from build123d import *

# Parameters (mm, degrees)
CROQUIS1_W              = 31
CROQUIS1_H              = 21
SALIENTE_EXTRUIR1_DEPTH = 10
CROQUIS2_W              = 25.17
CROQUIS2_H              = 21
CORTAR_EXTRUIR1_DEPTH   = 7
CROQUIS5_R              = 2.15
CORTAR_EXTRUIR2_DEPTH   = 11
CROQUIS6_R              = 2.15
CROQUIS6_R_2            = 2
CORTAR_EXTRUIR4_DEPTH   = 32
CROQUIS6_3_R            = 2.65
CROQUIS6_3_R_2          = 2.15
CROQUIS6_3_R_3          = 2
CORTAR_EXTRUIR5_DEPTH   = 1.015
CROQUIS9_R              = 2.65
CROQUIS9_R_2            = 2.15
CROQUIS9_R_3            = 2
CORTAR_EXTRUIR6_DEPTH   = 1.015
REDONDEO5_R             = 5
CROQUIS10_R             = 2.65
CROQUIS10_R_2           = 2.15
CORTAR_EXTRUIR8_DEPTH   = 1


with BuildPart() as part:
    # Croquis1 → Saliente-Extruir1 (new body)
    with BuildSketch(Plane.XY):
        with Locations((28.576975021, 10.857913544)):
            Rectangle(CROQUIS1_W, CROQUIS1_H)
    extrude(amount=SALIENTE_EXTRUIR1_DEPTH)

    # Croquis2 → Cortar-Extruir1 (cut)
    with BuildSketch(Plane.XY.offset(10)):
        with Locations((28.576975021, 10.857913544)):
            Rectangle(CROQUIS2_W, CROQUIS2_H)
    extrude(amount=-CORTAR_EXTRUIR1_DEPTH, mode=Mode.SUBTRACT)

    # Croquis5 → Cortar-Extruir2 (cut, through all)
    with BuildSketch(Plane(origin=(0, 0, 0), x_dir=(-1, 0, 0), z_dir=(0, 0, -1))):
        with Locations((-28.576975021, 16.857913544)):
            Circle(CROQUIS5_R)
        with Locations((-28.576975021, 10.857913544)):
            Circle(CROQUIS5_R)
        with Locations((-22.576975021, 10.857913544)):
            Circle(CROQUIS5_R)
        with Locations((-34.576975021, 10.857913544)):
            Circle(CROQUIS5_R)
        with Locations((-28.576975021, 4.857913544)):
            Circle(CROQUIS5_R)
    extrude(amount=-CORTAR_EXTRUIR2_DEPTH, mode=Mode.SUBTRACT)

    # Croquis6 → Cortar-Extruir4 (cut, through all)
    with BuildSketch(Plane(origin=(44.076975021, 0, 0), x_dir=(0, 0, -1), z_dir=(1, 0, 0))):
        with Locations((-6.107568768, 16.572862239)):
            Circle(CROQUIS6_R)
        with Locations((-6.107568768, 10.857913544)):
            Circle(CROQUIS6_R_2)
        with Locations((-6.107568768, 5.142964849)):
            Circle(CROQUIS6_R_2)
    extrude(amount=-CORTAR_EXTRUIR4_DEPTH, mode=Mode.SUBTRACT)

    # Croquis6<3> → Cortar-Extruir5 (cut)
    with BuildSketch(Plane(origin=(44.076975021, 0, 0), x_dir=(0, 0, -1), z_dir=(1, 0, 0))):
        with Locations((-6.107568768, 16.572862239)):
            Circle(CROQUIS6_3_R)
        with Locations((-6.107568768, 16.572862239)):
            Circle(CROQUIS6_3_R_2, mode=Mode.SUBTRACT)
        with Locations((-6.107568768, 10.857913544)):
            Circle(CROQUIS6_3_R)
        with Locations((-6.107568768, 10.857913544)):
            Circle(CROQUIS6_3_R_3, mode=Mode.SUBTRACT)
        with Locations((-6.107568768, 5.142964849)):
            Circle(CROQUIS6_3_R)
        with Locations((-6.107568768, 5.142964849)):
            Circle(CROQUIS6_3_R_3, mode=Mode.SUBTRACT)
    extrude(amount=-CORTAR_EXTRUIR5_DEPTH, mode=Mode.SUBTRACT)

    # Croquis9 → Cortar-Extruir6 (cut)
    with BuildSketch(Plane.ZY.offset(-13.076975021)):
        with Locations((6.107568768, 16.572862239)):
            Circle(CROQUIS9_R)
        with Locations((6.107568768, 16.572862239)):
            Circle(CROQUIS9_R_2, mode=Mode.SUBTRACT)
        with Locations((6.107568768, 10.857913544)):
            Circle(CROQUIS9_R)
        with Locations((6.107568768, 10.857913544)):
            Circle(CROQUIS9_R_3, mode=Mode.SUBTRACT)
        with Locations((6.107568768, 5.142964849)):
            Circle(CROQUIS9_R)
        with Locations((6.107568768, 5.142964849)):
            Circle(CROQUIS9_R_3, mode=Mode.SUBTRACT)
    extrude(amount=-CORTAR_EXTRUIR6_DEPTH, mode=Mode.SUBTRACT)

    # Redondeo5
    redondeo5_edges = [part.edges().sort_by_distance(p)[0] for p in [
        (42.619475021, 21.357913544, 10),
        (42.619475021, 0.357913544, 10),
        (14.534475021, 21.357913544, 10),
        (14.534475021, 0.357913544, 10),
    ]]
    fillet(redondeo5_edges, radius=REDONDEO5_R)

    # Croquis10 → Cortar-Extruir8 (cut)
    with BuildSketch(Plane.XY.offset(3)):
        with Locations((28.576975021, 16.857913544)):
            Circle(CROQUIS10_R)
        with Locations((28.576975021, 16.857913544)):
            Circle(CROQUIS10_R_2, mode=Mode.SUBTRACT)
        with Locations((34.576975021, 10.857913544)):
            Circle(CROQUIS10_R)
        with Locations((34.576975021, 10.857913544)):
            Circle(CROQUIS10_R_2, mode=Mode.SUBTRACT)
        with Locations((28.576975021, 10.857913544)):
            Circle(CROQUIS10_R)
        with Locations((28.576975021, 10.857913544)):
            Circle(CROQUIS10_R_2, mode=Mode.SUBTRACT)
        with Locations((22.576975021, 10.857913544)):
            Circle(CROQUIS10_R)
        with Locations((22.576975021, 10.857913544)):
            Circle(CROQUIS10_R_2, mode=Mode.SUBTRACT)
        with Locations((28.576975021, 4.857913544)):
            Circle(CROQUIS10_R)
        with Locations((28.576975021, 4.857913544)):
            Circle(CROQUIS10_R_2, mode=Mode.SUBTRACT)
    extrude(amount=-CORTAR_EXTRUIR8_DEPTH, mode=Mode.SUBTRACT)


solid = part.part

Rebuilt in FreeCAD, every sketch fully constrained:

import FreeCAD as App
import Part
import Sketcher
Q = App.Units.Quantity


def edges_at(feature, points):
    """Names of the edges that pass closest to the given points."""
    edges = feature.Shape.Edges
    near = lambda p: min(range(len(edges)), key=lambda i: edges[i].distToShape(Part.Vertex(*p))[0])
    return sorted({f"Edge{near(p) + 1}" for p in points})


def add_polygon(sketch, points):
    """Adds a closed chain of lines whose ends are joined by coincident constraints."""
    first, n = sketch.GeometryCount, len(points)
    for a, b in zip(points, points[1:] + points[:1]):
        sketch.addGeometry(Part.LineSegment(App.Vector(*a, 0), App.Vector(*b, 0)), False)
    for i in range(n):
        sketch.addConstraint(Sketcher.Constraint("Coincident", first + i, 2, first + (i + 1) % n, 1))

doc = App.newDocument("Part")
params = doc.addObject("Spreadsheet::Sheet", "Params")
for row, (alias, value) in enumerate([
    ("sketch1_width", "31 mm"),
    ("sketch1_height", "21 mm"),
    ("pad1_length", "10 mm"),
    ("sketch2_height", "21 mm"),
    ("sketch2_width", "25.17 mm"),
    ("pocket1_length", "7 mm"),
    ("sketch3_diameter", "4.3 mm"),
    ("sketch4_diameter", "4 mm"),
    ("sketch4_diameter2", "4.3 mm"),
    ("sketch5_diameter", "4 mm"),
    ("sketch5_diameter2", "5.3 mm"),
    ("sketch5_diameter3", "4.3 mm"),
    ("pocket4_length", "1.015 mm"),
    ("sketch6_diameter", "4 mm"),
    ("sketch6_diameter2", "5.3 mm"),
    ("sketch6_diameter3", "4.3 mm"),
    ("pocket5_length", "1.015 mm"),
    ("fillet_radius", "5 mm"),
    ("sketch7_diameter", "5.3 mm"),
    ("sketch7_diameter2", "4.3 mm"),
    ("pocket6_length", "1 mm"),
], start=1):
    params.set(f"A{row}", alias)
    params.set(f"B{row}", "=" + value)
    params.setAlias(f"B{row}", alias)

body = doc.addObject("PartDesign::Body", "Body")

# Sketch on XY plane
sketch1 = body.newObject("Sketcher::SketchObject", "Sketch")
sketch1.AttachmentSupport = (doc.getObject("XY_Plane"), [""])
sketch1.MapMode = "FlatFace"
add_polygon(sketch1, [(13, 21), (13, 0), (44, 0), (44, 21)])  # lines 0-3
sketch1.addConstraint([
    Sketcher.Constraint("Vertical", 0),
    Sketcher.Constraint("Horizontal", 1),
    Sketcher.Constraint("Vertical", 2),
    Sketcher.Constraint("Horizontal", 3),
    Sketcher.Constraint("DistanceX", 1, 1, 1, 2, Q("31 mm")),
    Sketcher.Constraint("DistanceY", 0, 2, 0, 1, Q("21 mm")),
    Sketcher.Constraint("DistanceX", -1, 1, 0, 2, Q("13.076975 mm")),
    Sketcher.Constraint("DistanceY", -1, 1, 0, 2, Q("0.357914 mm")),
])
sketch1.setExpression("Constraints[8]", "Params.sketch1_width")
sketch1.setExpression("Constraints[9]", "Params.sketch1_height")
pad1 = body.newObject("PartDesign::Pad", "Pad")
pad1.Profile = sketch1
pad1.setExpression("Length", "Params.pad1_length")

# Sketch on XY plane
sketch2 = body.newObject("Sketcher::SketchObject", "Sketch001")
sketch2.AttachmentSupport = (doc.getObject("XY_Plane"), [""])
sketch2.MapMode = "FlatFace"
sketch2.AttachmentOffset = App.Placement(App.Vector(0, 0, 10), App.Rotation())
add_polygon(sketch2, [(16, 21), (16, 0), (41, 0), (41, 21)])  # lines 0-3
sketch2.addConstraint([
    Sketcher.Constraint("Vertical", 0),
    Sketcher.Constraint("Horizontal", 1),
    Sketcher.Constraint("Vertical", 2),
    Sketcher.Constraint("Horizontal", 3),
    Sketcher.Constraint("DistanceY", 0, 2, 0, 1, Q("21 mm")),
    Sketcher.Constraint("DistanceX", 1, 1, 1, 2, Q("25.17 mm")),
    Sketcher.Constraint("DistanceX", -1, 1, 0, 2, Q("15.991975 mm")),
    Sketcher.Constraint("DistanceY", -1, 1, 0, 2, Q("0.357914 mm")),
])
sketch2.setExpression("Constraints[8]", "Params.sketch2_height")
sketch2.setExpression("Constraints[9]", "Params.sketch2_width")
pocket1 = body.newObject("PartDesign::Pocket", "Pocket")
pocket1.Profile = sketch2
pocket1.setExpression("Length", "Params.pocket1_length")

# Sketch on XY plane
sketch3 = body.newObject("Sketcher::SketchObject", "Sketch002")
sketch3.AttachmentSupport = (doc.getObject("XY_Plane"), [""])
sketch3.MapMode = "FlatFace"
sketch3.addGeometry([
    Part.Circle(App.Vector(28.6, 16.9, 0), App.Vector(0, 0, 1), 2.1),  # 0
    Part.Circle(App.Vector(28.6, 10.9, 0), App.Vector(0, 0, 1), 2.1),  # 1
    Part.Circle(App.Vector(22.6, 10.9, 0), App.Vector(0, 0, 1), 2.1),  # 2
    Part.Circle(App.Vector(34.6, 10.9, 0), App.Vector(0, 0, 1), 2.1),  # 3
    Part.Circle(App.Vector(28.6, 4.9, 0), App.Vector(0, 0, 1), 2.1),  # 4
], False)
sketch3.addConstraint([
    Sketcher.Constraint("Equal", 0, 1),
    Sketcher.Constraint("Equal", 1, 2),
    Sketcher.Constraint("Equal", 2, 3),
    Sketcher.Constraint("Equal", 3, 4),
    Sketcher.Constraint("Horizontal", 1, 3, 2, 3),
    Sketcher.Constraint("Horizontal", 2, 3, 3, 3),
    Sketcher.Constraint("Vertical", 0, 3, 1, 3),
    Sketcher.Constraint("Vertical", 1, 3, 4, 3),
    Sketcher.Constraint("Diameter", 0, Q("4.3 mm")),
    Sketcher.Constraint("DistanceY", 1, 3, 0, 3, Q("6 mm")),
    Sketcher.Constraint("DistanceX", 2, 3, 1, 3, Q("6 mm")),
    Sketcher.Constraint("DistanceX", 1, 3, 3, 3, Q("6 mm")),
    Sketcher.Constraint("DistanceY", 4, 3, 1, 3, Q("6 mm")),
    Sketcher.Constraint("DistanceX", -1, 1, 0, 3, Q("28.576975 mm")),
    Sketcher.Constraint("DistanceY", -1, 1, 0, 3, Q("16.857914 mm")),
])
sketch3.setExpression("Constraints[8]", "Params.sketch3_diameter")
pocket2 = body.newObject("PartDesign::Pocket", "Pocket001")
pocket2.Profile = sketch3
pocket2.Type = "ThroughAll"
pocket2.Reversed = True

# Sketch on YZ plane
sketch4 = body.newObject("Sketcher::SketchObject", "Sketch003")
sketch4.AttachmentSupport = (doc.getObject("YZ_Plane"), [""])
sketch4.MapMode = "FlatFace"
sketch4.AttachmentOffset = App.Placement(App.Vector(0, 0, 44.076975), App.Rotation())
sketch4.addGeometry([
    Part.Circle(App.Vector(16.6, 6.1, 0), App.Vector(0, 0, 1), 2.1),
    Part.Circle(App.Vector(10.9, 6.1, 0), App.Vector(0, 0, 1), 2),
    Part.Circle(App.Vector(5.1, 6.1, 0), App.Vector(0, 0, 1), 2),
], False)
sketch4.addConstraint([
    Sketcher.Constraint("Equal", 1, 2),
    Sketcher.Constraint("Horizontal", 0, 3, 1, 3),
    Sketcher.Constraint("Horizontal", 1, 3, 2, 3),
    Sketcher.Constraint("Diameter", 1, Q("4 mm")),
    Sketcher.Constraint("Diameter", 0, Q("4.3 mm")),
    Sketcher.Constraint("DistanceY", -1, 1, 0, 3, Q("6.107569 mm")),
    Sketcher.Constraint("DistanceX", 1, 3, 0, 3, Q("5.714949 mm")),
    Sketcher.Constraint("DistanceX", 2, 3, 1, 3, Q("5.714949 mm")),
    Sketcher.Constraint("DistanceX", -1, 1, 0, 3, Q("16.572862 mm")),
])
sketch4.setExpression("Constraints[3]", "Params.sketch4_diameter")
sketch4.setExpression("Constraints[4]", "Params.sketch4_diameter2")
pocket3 = body.newObject("PartDesign::Pocket", "Pocket002")
pocket3.Profile = sketch4
pocket3.Type = "ThroughAll"

# Sketch on YZ plane
sketch5 = body.newObject("Sketcher::SketchObject", "Sketch004")
sketch5.AttachmentSupport = (doc.getObject("YZ_Plane"), [""])
sketch5.MapMode = "FlatFace"
sketch5.AttachmentOffset = App.Placement(App.Vector(0, 0, 44.076975), App.Rotation())
sketch5.addGeometry([
    Part.Circle(App.Vector(16.6, 6.1, 0), App.Vector(0, 0, 1), 2.6),  # 0
    Part.Circle(App.Vector(16.6, 6.1, 0), App.Vector(0, 0, 1), 2.1),  # 1
    Part.Circle(App.Vector(10.9, 6.1, 0), App.Vector(0, 0, 1), 2.6),  # 2
    Part.Circle(App.Vector(10.9, 6.1, 0), App.Vector(0, 0, 1), 2),  # 3
    Part.Circle(App.Vector(5.1, 6.1, 0), App.Vector(0, 0, 1), 2.6),  # 4
    Part.Circle(App.Vector(5.1, 6.1, 0), App.Vector(0, 0, 1), 2),  # 5
], False)
sketch5.addConstraint([
    Sketcher.Constraint("Coincident", 1, 3, 0, 3),
    Sketcher.Constraint("Coincident", 3, 3, 2, 3),
    Sketcher.Constraint("Coincident", 5, 3, 4, 3),
    Sketcher.Constraint("Equal", 0, 2),
    Sketcher.Constraint("Equal", 2, 4),
    Sketcher.Constraint("Equal", 3, 5),
    Sketcher.Constraint("Horizontal", 1, 3, 2, 3),
    Sketcher.Constraint("Horizontal", 3, 3, 4, 3),
    Sketcher.Constraint("Diameter", 3, Q("4 mm")),
    Sketcher.Constraint("Diameter", 0, Q("5.3 mm")),
    Sketcher.Constraint("Diameter", 1, Q("4.3 mm")),
    Sketcher.Constraint("DistanceY", -1, 1, 0, 3, Q("6.107569 mm")),
    Sketcher.Constraint("DistanceX", 2, 3, 0, 3, Q("5.714949 mm")),
    Sketcher.Constraint("DistanceX", 4, 3, 2, 3, Q("5.714949 mm")),
    Sketcher.Constraint("DistanceX", -1, 1, 0, 3, Q("16.572862 mm")),
])
sketch5.setExpression("Constraints[8]", "Params.sketch5_diameter")
sketch5.setExpression("Constraints[9]", "Params.sketch5_diameter2")
sketch5.setExpression("Constraints[10]", "Params.sketch5_diameter3")
pocket4 = body.newObject("PartDesign::Pocket", "Pocket003")
pocket4.Profile = sketch5
pocket4.setExpression("Length", "Params.pocket4_length")

# Sketch on YZ plane
sketch6 = body.newObject("Sketcher::SketchObject", "Sketch005")
sketch6.AttachmentSupport = (doc.getObject("YZ_Plane"), [""])
sketch6.MapMode = "FlatFace"
sketch6.AttachmentOffset = App.Placement(App.Vector(0, 0, 13.076975), App.Rotation())
sketch6.addGeometry([
    Part.Circle(App.Vector(16.6, 6.1, 0), App.Vector(0, 0, 1), 2.6),  # 0
    Part.Circle(App.Vector(16.6, 6.1, 0), App.Vector(0, 0, 1), 2.1),  # 1
    Part.Circle(App.Vector(10.9, 6.1, 0), App.Vector(0, 0, 1), 2.6),  # 2
    Part.Circle(App.Vector(10.9, 6.1, 0), App.Vector(0, 0, 1), 2),  # 3
    Part.Circle(App.Vector(5.1, 6.1, 0), App.Vector(0, 0, 1), 2.6),  # 4
    Part.Circle(App.Vector(5.1, 6.1, 0), App.Vector(0, 0, 1), 2),  # 5
], False)
sketch6.addConstraint([
    Sketcher.Constraint("Coincident", 1, 3, 0, 3),
    Sketcher.Constraint("Coincident", 3, 3, 2, 3),
    Sketcher.Constraint("Coincident", 5, 3, 4, 3),
    Sketcher.Constraint("Equal", 0, 2),
    Sketcher.Constraint("Equal", 2, 4),
    Sketcher.Constraint("Equal", 3, 5),
    Sketcher.Constraint("Horizontal", 1, 3, 2, 3),
    Sketcher.Constraint("Horizontal", 3, 3, 4, 3),
    Sketcher.Constraint("Diameter", 3, Q("4 mm")),
    Sketcher.Constraint("Diameter", 0, Q("5.3 mm")),
    Sketcher.Constraint("Diameter", 1, Q("4.3 mm")),
    Sketcher.Constraint("DistanceY", -1, 1, 0, 3, Q("6.107569 mm")),
    Sketcher.Constraint("DistanceX", 2, 3, 0, 3, Q("5.714949 mm")),
    Sketcher.Constraint("DistanceX", 4, 3, 2, 3, Q("5.714949 mm")),
    Sketcher.Constraint("DistanceX", -1, 1, 0, 3, Q("16.572862 mm")),
])
sketch6.setExpression("Constraints[8]", "Params.sketch6_diameter")
sketch6.setExpression("Constraints[9]", "Params.sketch6_diameter2")
sketch6.setExpression("Constraints[10]", "Params.sketch6_diameter3")
pocket5 = body.newObject("PartDesign::Pocket", "Pocket004")
pocket5.Profile = sketch6
pocket5.setExpression("Length", "Params.pocket5_length")
pocket5.Reversed = True
doc.recompute()

fillet = body.newObject("PartDesign::Fillet", "Fillet")
fillet.Base = (pocket5, edges_at(pocket5, [
    (42.619, 21.358, 10),
    (42.619, 0.358, 10),
    (14.534, 21.358, 10),
    (14.534, 0.358, 10),
]))
fillet.setExpression("Radius", "Params.fillet_radius")

# Sketch on XY plane
sketch7 = body.newObject("Sketcher::SketchObject", "Sketch006")
sketch7.AttachmentSupport = (doc.getObject("XY_Plane"), [""])
sketch7.MapMode = "FlatFace"
sketch7.AttachmentOffset = App.Placement(App.Vector(0, 0, 3), App.Rotation())
sketch7.addGeometry([
    Part.Circle(App.Vector(28.6, 16.9, 0), App.Vector(0, 0, 1), 2.6),  # 0
    Part.Circle(App.Vector(28.6, 16.9, 0), App.Vector(0, 0, 1), 2.1),  # 1
    Part.Circle(App.Vector(34.6, 10.9, 0), App.Vector(0, 0, 1), 2.6),  # 2
    Part.Circle(App.Vector(34.6, 10.9, 0), App.Vector(0, 0, 1), 2.1),  # 3
    Part.Circle(App.Vector(28.6, 10.9, 0), App.Vector(0, 0, 1), 2.6),  # 4
    Part.Circle(App.Vector(28.6, 10.9, 0), App.Vector(0, 0, 1), 2.1),  # 5
    Part.Circle(App.Vector(22.6, 10.9, 0), App.Vector(0, 0, 1), 2.6),  # 6
    Part.Circle(App.Vector(22.6, 10.9, 0), App.Vector(0, 0, 1), 2.1),  # 7
    Part.Circle(App.Vector(28.6, 4.9, 0), App.Vector(0, 0, 1), 2.6),  # 8
    Part.Circle(App.Vector(28.6, 4.9, 0), App.Vector(0, 0, 1), 2.1),  # 9
], False)
sketch7.addConstraint([
    Sketcher.Constraint("Coincident", 1, 3, 0, 3),
    Sketcher.Constraint("Coincident", 3, 3, 2, 3),
    Sketcher.Constraint("Coincident", 5, 3, 4, 3),
    Sketcher.Constraint("Coincident", 7, 3, 6, 3),
    Sketcher.Constraint("Coincident", 9, 3, 8, 3),
    Sketcher.Constraint("Equal", 0, 2),
    Sketcher.Constraint("Equal", 1, 3),
    Sketcher.Constraint("Equal", 2, 4),
    Sketcher.Constraint("Equal", 3, 5),
    Sketcher.Constraint("Equal", 4, 6),
    Sketcher.Constraint("Equal", 5, 7),
    Sketcher.Constraint("Equal", 6, 8),
    Sketcher.Constraint("Equal", 7, 9),
    Sketcher.Constraint("Horizontal", 3, 3, 4, 3),
    Sketcher.Constraint("Horizontal", 5, 3, 6, 3),
    Sketcher.Constraint("Vertical", 1, 3, 4, 3),
    Sketcher.Constraint("Vertical", 5, 3, 8, 3),
    Sketcher.Constraint("Diameter", 0, Q("5.3 mm")),
    Sketcher.Constraint("Diameter", 1, Q("4.3 mm")),
    Sketcher.Constraint("DistanceX", 0, 3, 2, 3, Q("6 mm")),
    Sketcher.Constraint("DistanceY", 2, 3, 0, 3, Q("6 mm")),
    Sketcher.Constraint("DistanceX", 6, 3, 4, 3, Q("6 mm")),
    Sketcher.Constraint("DistanceY", 8, 3, 4, 3, Q("6 mm")),
    Sketcher.Constraint("DistanceX", -1, 1, 0, 3, Q("28.576975 mm")),
    Sketcher.Constraint("DistanceY", -1, 1, 0, 3, Q("16.857914 mm")),
])
sketch7.setExpression("Constraints[17]", "Params.sketch7_diameter")
sketch7.setExpression("Constraints[18]", "Params.sketch7_diameter2")
pocket6 = body.newObject("PartDesign::Pocket", "Pocket005")
pocket6.Profile = sketch7
pocket6.setExpression("Length", "Params.pocket6_length")

doc.recompute()
